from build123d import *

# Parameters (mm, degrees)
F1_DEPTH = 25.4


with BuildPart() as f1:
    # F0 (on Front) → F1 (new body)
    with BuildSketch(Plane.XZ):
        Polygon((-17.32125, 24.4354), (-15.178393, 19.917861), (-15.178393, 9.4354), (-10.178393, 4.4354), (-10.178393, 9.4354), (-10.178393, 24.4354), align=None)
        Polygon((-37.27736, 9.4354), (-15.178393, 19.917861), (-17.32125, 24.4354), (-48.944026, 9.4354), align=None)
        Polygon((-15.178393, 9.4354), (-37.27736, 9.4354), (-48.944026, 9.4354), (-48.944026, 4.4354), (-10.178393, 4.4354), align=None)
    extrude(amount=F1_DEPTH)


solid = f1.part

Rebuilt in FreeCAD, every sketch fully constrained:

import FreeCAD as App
import Part
import Sketcher
from FreeCAD import Vector

doc = App.newDocument("Part")
params = doc.addObject("Spreadsheet::Sheet", "Params")
for row, (alias, value) in enumerate([
    ("sketch1_height", "20 mm"),
    ("sketch1_height2", "5 mm"),
    ("sketch1_length", "34.999999 mm"),
    ("pad1_length", "25.4 mm"),
], start=1):
    params.set(f"A{row}", alias)
    params.set(f"B{row}", "=" + value)
    params.setAlias(f"B{row}", alias)

body = doc.addObject("PartDesign::Body", "Body")

sketch1 = body.newObject("Sketcher::SketchObject", "Sketch")
sketch1.AttachmentSupport = (doc.getObject("XZ_Plane"), [""])
sketch1.MapMode = "FlatFace"
sketch1.addGeometry([
    Part.LineSegment(Vector(-10, 4, 0), Vector(-10, 24, 0)),
    Part.LineSegment(Vector(-10, 24, 0), Vector(-17, 24, 0)),
    Part.LineSegment(Vector(-17, 24, 0), Vector(-49, 9, 0)),
    Part.LineSegment(Vector(-49, 9, 0), Vector(-49, 4, 0)),
    Part.LineSegment(Vector(-49, 4, 0), Vector(-10, 4, 0)),
    Part.LineSegment(Vector(-15, 20, 0), Vector(-15, 9, 0)),
    Part.LineSegment(Vector(-15, 9, 0), Vector(-37, 9, 0)),
    Part.LineSegment(Vector(-37, 9, 0), Vector(-15, 20, 0)),
], False)
sketch1.addConstraint([
    Sketcher.Constraint("Coincident", 0, 2, 1, 1),
    Sketcher.Constraint("Coincident", 1, 2, 2, 1),
    Sketcher.Constraint("Coincident", 2, 2, 3, 1),
    Sketcher.Constraint("Coincident", 3, 2, 4, 1),
    Sketcher.Constraint("Coincident", 4, 2, 0, 1),
    Sketcher.Constraint("Coincident", 5, 2, 6, 1),
    Sketcher.Constraint("Coincident", 6, 2, 7, 1),
    Sketcher.Constraint("Coincident", 7, 2, 5, 1),
    Sketcher.Constraint("Vertical", 0),
    Sketcher.Constraint("Horizontal", 1),
    Sketcher.Constraint("Vertical", 3),
    Sketcher.Constraint("Horizontal", 4),
    Sketcher.Constraint("Vertical", 5),
    Sketcher.Constraint("Horizontal", 6),
    Sketcher.Constraint("Parallel", 2, 7),
    Sketcher.Constraint("Horizontal", 2, 2, 5, 2),
    Sketcher.Constraint("DistanceY", 0, 1, 0, 2, 20.0),
    Sketcher.Constraint("DistanceY", 3, 2, 3, 1, 5.0),
    Sketcher.Constraint("Distance", 2, 34.999999),
    Sketcher.Constraint("DistanceX", 5, 2, 4, 2, 5.0),
    Sketcher.Constraint("DistanceY", 5, 2, 5, 1, 10.482461),
    Sketcher.Constraint("DistanceY", -1, 1, 0, 2, 24.4354),
    Sketcher.Constraint("DistanceX", 1, 2, 1, 1, 7.142857),
    Sketcher.Constraint("DistanceX", 1, 2, -1, 1, 17.32125),
])
sketch1.setExpression("Constraints[16]", "Params.sketch1_height")
sketch1.setExpression("Constraints[17]", "Params.sketch1_height2")
sketch1.setExpression("Constraints[18]", "Params.sketch1_length")
pad1 = body.newObject("PartDesign::Pad", "Pad")
pad1.Profile = sketch1
pad1.setExpression("Length", "Params.pad1_length")

doc.recompute()
